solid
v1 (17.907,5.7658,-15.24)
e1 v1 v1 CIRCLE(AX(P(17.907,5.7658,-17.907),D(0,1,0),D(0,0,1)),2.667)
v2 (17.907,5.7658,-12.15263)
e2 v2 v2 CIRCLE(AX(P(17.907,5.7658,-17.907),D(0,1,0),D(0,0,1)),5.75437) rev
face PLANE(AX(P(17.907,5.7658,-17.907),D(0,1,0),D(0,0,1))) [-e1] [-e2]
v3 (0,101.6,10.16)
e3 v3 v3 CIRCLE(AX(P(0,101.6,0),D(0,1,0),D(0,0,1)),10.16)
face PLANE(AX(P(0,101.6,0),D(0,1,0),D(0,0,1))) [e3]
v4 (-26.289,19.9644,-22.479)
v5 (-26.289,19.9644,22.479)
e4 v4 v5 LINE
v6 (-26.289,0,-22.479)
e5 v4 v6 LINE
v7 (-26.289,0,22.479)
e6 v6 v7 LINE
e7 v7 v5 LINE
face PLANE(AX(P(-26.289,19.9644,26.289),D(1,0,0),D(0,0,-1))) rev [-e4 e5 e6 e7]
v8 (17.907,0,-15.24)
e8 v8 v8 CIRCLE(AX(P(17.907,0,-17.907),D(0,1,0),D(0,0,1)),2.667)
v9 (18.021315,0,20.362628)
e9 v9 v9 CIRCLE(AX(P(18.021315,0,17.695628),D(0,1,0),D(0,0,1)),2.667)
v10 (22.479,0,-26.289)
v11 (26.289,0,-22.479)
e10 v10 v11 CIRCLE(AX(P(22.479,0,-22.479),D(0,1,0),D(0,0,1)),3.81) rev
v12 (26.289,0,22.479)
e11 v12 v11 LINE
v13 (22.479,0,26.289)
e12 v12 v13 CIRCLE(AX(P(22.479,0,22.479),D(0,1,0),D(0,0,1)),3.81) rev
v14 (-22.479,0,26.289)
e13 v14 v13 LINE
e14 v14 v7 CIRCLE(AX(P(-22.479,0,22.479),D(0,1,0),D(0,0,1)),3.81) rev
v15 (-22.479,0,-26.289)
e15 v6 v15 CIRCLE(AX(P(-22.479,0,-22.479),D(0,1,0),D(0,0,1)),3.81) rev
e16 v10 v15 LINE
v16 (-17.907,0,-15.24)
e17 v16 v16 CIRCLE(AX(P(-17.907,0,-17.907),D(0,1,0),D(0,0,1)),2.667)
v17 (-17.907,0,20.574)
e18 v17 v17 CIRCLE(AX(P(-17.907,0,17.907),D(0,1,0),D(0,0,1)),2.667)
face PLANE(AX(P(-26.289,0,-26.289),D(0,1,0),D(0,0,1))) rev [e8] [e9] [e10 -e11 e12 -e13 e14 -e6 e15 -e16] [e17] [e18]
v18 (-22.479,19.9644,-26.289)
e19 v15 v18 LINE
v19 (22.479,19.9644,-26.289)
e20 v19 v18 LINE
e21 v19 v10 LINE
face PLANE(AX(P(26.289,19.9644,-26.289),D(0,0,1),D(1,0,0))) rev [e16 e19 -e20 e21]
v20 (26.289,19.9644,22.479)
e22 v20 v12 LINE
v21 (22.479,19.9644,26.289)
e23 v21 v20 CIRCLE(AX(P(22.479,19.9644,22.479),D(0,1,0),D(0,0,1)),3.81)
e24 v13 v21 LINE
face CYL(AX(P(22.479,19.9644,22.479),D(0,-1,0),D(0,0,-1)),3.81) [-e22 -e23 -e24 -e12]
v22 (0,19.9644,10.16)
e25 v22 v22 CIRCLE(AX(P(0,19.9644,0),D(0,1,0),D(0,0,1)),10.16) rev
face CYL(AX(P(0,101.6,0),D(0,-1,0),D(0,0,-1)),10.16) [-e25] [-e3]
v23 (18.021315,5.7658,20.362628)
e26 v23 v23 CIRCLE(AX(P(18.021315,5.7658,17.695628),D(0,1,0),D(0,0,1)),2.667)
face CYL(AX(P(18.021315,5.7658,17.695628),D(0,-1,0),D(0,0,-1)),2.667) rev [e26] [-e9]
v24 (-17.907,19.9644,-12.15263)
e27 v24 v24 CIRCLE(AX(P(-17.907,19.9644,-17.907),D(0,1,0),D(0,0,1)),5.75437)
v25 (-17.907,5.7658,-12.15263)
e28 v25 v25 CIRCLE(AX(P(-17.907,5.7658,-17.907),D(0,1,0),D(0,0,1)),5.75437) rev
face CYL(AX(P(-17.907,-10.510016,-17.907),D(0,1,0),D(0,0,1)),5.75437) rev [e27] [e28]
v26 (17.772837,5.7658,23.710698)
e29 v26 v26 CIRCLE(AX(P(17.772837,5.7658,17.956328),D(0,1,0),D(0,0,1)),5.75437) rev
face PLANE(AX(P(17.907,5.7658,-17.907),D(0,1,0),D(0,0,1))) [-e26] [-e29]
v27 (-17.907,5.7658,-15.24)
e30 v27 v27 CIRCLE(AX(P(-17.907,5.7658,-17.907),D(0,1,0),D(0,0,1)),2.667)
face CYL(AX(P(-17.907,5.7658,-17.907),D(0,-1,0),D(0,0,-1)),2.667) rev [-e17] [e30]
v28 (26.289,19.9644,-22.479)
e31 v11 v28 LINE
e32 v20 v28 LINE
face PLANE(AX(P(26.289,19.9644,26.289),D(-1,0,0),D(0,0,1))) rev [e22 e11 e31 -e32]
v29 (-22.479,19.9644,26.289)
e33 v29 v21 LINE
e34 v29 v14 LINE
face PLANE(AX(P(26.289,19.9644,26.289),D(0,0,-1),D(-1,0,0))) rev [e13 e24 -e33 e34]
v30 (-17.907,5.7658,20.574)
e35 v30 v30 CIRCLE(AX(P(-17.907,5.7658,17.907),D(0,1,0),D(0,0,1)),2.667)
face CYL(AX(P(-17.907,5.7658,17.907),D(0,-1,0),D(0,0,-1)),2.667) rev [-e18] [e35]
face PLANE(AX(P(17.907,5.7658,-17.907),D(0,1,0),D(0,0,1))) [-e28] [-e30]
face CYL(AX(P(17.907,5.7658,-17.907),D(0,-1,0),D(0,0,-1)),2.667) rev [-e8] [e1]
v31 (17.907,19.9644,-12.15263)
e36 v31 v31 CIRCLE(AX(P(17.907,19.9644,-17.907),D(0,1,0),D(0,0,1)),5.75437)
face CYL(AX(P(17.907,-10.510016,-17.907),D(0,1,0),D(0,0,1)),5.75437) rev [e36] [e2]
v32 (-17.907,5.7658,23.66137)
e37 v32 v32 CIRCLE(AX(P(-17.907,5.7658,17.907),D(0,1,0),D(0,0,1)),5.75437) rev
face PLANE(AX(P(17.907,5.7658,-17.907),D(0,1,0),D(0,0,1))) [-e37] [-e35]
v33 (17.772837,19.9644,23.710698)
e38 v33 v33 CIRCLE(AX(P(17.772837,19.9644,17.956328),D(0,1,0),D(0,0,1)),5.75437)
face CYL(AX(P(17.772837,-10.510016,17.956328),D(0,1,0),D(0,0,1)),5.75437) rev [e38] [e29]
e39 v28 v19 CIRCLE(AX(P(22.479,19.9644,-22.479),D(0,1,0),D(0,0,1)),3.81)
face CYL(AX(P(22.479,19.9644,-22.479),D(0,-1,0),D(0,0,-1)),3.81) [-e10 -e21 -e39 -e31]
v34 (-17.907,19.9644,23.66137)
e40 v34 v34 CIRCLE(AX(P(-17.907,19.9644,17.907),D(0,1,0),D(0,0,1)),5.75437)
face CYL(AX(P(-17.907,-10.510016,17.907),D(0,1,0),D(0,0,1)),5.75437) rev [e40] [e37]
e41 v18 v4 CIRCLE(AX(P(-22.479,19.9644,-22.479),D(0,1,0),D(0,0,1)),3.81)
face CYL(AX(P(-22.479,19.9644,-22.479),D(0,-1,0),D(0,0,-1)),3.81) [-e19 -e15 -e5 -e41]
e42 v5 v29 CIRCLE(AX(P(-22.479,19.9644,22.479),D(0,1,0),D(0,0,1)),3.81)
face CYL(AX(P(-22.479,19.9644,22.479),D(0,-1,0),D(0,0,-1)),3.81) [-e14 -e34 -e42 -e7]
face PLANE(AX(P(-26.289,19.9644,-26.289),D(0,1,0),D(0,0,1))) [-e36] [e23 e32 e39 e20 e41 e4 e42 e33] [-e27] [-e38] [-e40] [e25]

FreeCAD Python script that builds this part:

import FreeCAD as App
import Part
import Sketcher
Q = App.Units.Quantity


def edges_at(feature, points):
    """Names of the edges that pass closest to the given points."""
    edges = feature.Shape.Edges
    near = lambda p: min(range(len(edges)), key=lambda i: edges[i].distToShape(Part.Vertex(*p))[0])
    return sorted({f"Edge{near(p) + 1}" for p in points})


def add_polygon(sketch, points):
    """Adds a closed chain of lines whose ends are joined by coincident constraints."""
    first, n = sketch.GeometryCount, len(points)
    for a, b in zip(points, points[1:] + points[:1]):
        sketch.addGeometry(Part.LineSegment(App.Vector(*a, 0), App.Vector(*b, 0)), False)
    for i in range(n):
        sketch.addConstraint(Sketcher.Constraint("Coincident", first + i, 2, first + (i + 1) % n, 1))

doc = App.newDocument("Part")
params = doc.addObject("Spreadsheet::Sheet", "Params")
for row, (alias, value) in enumerate([
    ("sketch1_width", "2.07 in"),
    ("pad1_length", "0.786 in"),
    ("sketch2_diameter", "0.21 in"),
    ("pocket1_length", "0.227 in"),
    ("pocket2_length", "0.559 in"),
    ("fillet_radius", "0.15 in"),
    ("sketch4_diameter", "0.8 in"),
    ("pad2_length", "4 in"),
], start=1):
    params.set(f"A{row}", alias)
    params.set(f"B{row}", "=" + value)
    params.setAlias(f"B{row}", alias)

body = doc.addObject("PartDesign::Body", "Body")

sketch1 = body.newObject("Sketcher::SketchObject", "Sketch")
sketch1.AttachmentSupport = (doc.getObject("XZ_Plane"), [""])
sketch1.MapMode = "FlatFace"
add_polygon(sketch1, [(-26, -26), (-26, 26), (26, 26), (26, -26)])
sketch1.addConstraint(Sketcher.Constraint("Vertical", 0))
sketch1.addConstraint(Sketcher.Constraint("Horizontal", 1))
sketch1.addConstraint(Sketcher.Constraint("Vertical", 2))
sketch1.addConstraint(Sketcher.Constraint("Horizontal", 3))
sketch1.addConstraint(Sketcher.Constraint("Symmetric", 0, 2, 2, 2, -1, 1))
sketch1.addConstraint(Sketcher.Constraint("Equal", 3, 0))
sketch1.addConstraint(Sketcher.Constraint("DistanceX", 1, 1, 1, 2, Q("2.07 in")))
sketch1.setExpression("Constraints[10]", "Params.sketch1_width")
pad1 = body.newObject("PartDesign::Pad", "Pad")
pad1.Profile = sketch1
pad1.setExpression("Length", "Params.pad1_length")
pad1.Reversed = True

sketch2 = body.newObject("Sketcher::SketchObject", "Sketch001")
sketch2.AttachmentSupport = (doc.getObject("XZ_Plane"), [""])
sketch2.MapMode = "FlatFace"
sketch2.addGeometry(Part.Circle(App.Vector(-17.9, -17.9, 0), App.Vector(0, 0, 1), 2.7), False)
sketch2.addGeometry(Part.Circle(App.Vector(-17.9, 17.9, 0), App.Vector(0, 0, 1), 2.7), False)
sketch2.addGeometry(Part.Circle(App.Vector(18, 17.7, 0), App.Vector(0, 0, 1), 2.7), False)
sketch2.addGeometry(Part.Circle(App.Vector(17.9, -17.9, 0), App.Vector(0, 0, 1), 2.7), False)
sketch2.addConstraint(Sketcher.Constraint("Equal", 0, 1))
sketch2.addConstraint(Sketcher.Constraint("Equal", 1, 2))
sketch2.addConstraint(Sketcher.Constraint("Equal", 2, 3))
sketch2.addConstraint(Sketcher.Constraint("Symmetric", 1, 3, 3, 3, -1, 1))
sketch2.addConstraint(Sketcher.Constraint("Symmetric", 0, 3, 3, 3, -2))
sketch2.addConstraint(Sketcher.Constraint("Diameter", 0, Q("0.21 in")))
sketch2.addConstraint(Sketcher.Constraint("DistanceY", 0, 3, 1, 3, Q("1.41 in")))
sketch2.addConstraint(Sketcher.Constraint("DistanceX", 0, 3, 3, 3, Q("1.41 in")))
sketch2.addConstraint(Sketcher.Constraint("DistanceY", -1, 1, 2, 3, Q("17.695628 mm")))
sketch2.addConstraint(Sketcher.Constraint("DistanceX", -1, 1, 2, 3, Q("18.021315 mm")))
sketch2.setExpression("Constraints[5]", "Params.sketch2_diameter")
pocket1 = body.newObject("PartDesign::Pocket", "Pocket")
pocket1.Profile = sketch2
pocket1.setExpression("Length", "Params.pocket1_length")

sketch3 = body.newObject("Sketcher::SketchObject", "Sketch002")
sketch3.AttachmentSupport = (doc.getObject("XZ_Plane"), [""])
sketch3.MapMode = "FlatFace"
sketch3.AttachmentOffset = App.Placement(App.Vector(0, 0, -0.786 * 25.4), App.Rotation())
sketch3.addGeometry(Part.Circle(App.Vector(-18, -18, 0), App.Vector(0, 0, 1), 6), False)
sketch3.addGeometry(Part.Circle(App.Vector(-18, 18, 0), App.Vector(0, 0, 1), 6), False)
sketch3.addGeometry(Part.Circle(App.Vector(18, 18, 0), App.Vector(0, 0, 1), 6), False)
sketch3.addGeometry(Part.Circle(App.Vector(18, -18, 0), App.Vector(0, 0, 1), 6), False)
sketch3.addConstraint(Sketcher.Constraint("Equal", 0, 1))
sketch3.addConstraint(Sketcher.Constraint("Equal", 1, 2))
sketch3.addConstraint(Sketcher.Constraint("Equal", 2, 3))
sketch3.addConstraint(Sketcher.Constraint("Symmetric", 1, 3, 3, 3, -1, 1))
sketch3.addConstraint(Sketcher.Constraint("Symmetric", 0, 3, 3, 3, -2))
sketch3.addConstraint(Sketcher.Constraint("Diameter", 0, Q("0.4531 in")))
sketch3.addConstraint(Sketcher.Constraint("DistanceY", 0, 3, 1, 3, Q("1.41 in")))
sketch3.addConstraint(Sketcher.Constraint("DistanceX", 0, 3, 3, 3, Q("1.41 in")))
sketch3.addConstraint(Sketcher.Constraint("DistanceY", -1, 1, 2, 3, Q("17.956328 mm")))
sketch3.addConstraint(Sketcher.Constraint("DistanceX", -1, 1, 2, 3, Q("17.772837 mm")))
pocket2 = body.newObject("PartDesign::Pocket", "Pocket001")
pocket2.Profile = sketch3
pocket2.setExpression("Length", "Params.pocket2_length")
pocket2.Reversed = True
doc.recompute()

fillet = body.newObject("PartDesign::Fillet", "Fillet")
fillet.Base = (pocket2, edges_at(pocket2, [
    (-26.289, 9.982, -26.289),
    (26.289, 9.982, -26.289),
    (26.289, 9.982, 26.289),
    (-26.289, 9.982, 26.289),
]))
fillet.setExpression("Radius", "Params.fillet_radius")

sketch4 = body.newObject("Sketcher::SketchObject", "Sketch003")
sketch4.AttachmentSupport = (doc.getObject("XZ_Plane"), [""])
sketch4.MapMode = "FlatFace"
sketch4.addGeometry(Part.Circle(App.Vector(0, 0, 0), App.Vector(0, 0, 1), 10), False)
sketch4.addConstraint(Sketcher.Constraint("Coincident", 0, 3, -1, 1))
sketch4.addConstraint(Sketcher.Constraint("Diameter", 0, Q("0.8 in")))
sketch4.setExpression("Constraints[1]", "Params.sketch4_diameter")
pad2 = body.newObject("PartDesign::Pad", "Pad001")
pad2.Profile = sketch4
pad2.setExpression("Length", "Params.pad2_length")
pad2.Reversed = True

doc.recompute()
